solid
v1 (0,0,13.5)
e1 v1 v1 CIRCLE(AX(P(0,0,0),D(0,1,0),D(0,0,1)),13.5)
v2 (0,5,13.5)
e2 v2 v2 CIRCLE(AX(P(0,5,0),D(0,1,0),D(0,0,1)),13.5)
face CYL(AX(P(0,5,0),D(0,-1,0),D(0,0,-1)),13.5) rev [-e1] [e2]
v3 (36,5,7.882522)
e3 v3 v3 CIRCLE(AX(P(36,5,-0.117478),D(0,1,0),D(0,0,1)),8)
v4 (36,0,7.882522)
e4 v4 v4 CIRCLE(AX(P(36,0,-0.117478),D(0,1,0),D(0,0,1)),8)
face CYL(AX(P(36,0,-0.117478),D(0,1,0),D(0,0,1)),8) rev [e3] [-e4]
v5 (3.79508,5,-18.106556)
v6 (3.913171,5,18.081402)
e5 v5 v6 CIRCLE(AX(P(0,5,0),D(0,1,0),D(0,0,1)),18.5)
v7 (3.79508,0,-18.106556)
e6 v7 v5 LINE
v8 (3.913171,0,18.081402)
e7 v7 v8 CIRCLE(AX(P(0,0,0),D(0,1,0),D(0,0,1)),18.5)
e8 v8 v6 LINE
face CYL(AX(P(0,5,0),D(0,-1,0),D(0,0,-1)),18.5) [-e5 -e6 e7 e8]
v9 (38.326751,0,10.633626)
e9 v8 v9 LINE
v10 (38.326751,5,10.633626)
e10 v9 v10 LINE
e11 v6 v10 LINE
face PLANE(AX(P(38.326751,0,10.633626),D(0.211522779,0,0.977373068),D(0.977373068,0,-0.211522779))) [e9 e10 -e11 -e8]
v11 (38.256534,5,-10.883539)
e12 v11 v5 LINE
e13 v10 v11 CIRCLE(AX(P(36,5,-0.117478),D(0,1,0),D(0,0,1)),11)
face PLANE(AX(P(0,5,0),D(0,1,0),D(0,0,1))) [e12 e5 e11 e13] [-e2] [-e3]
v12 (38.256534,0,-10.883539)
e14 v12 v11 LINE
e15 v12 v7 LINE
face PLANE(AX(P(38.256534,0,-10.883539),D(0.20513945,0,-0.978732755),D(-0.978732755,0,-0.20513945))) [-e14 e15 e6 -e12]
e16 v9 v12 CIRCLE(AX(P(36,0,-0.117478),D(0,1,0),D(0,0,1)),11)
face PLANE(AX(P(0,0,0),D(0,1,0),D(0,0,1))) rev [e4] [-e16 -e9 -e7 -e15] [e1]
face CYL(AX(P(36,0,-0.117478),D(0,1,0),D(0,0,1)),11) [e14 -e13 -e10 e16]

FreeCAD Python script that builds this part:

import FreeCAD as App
import Part
import Sketcher

doc = App.newDocument("Part")
params = doc.addObject("Spreadsheet::Sheet", "Params")
for row, (alias, value) in enumerate([
    ("sketch1_diameter", "37 mm"),
    ("sketch1_diameter2", "27 mm"),
    ("pad1_length", "5 mm"),
    ("pad2_length", "5 mm"),
    ("sketch3_diameter", "22 mm"),
    ("pad3_length", "5 mm"),
    ("sketch4_diameter", "16 mm"),
    ("pocket1_length", "5 mm"),
    ("pad4_length", "5 mm"),
    ("pad5_length", "5 mm"),
], start=1):
    params.set(f"A{row}", alias)
    params.set(f"B{row}", "=" + value)
    params.setAlias(f"B{row}", alias)

body = doc.addObject("PartDesign::Body", "Body")

# Sketch on XZ plane
sketch1 = body.newObject("Sketcher::SketchObject", "Sketch")
sketch1.AttachmentSupport = (doc.getObject("XZ_Plane"), [""])
sketch1.MapMode = "FlatFace"
sketch1.addGeometry(Part.Circle(App.Vector(0, 0, 0), App.Vector(0, 0, 1), 18), False)
sketch1.addGeometry(Part.Circle(App.Vector(0, 0, 0), App.Vector(0, 0, 1), 14), False)
sketch1.addConstraint(Sketcher.Constraint("Coincident", 0, 3, -1, 1))
sketch1.addConstraint(Sketcher.Constraint("Coincident", 1, 3, -1, 1))
sketch1.addConstraint(Sketcher.Constraint("Diameter", 0, 37.0))
sketch1.addConstraint(Sketcher.Constraint("Diameter", 1, 27.0))
sketch1.setExpression("Constraints[2]", "Params.sketch1_diameter")
sketch1.setExpression("Constraints[3]", "Params.sketch1_diameter2")
pad1 = body.newObject("PartDesign::Pad", "Pad")
pad1.Profile = sketch1
pad1.setExpression("Length", "Params.pad1_length")
pad1.Reversed = True

# Sketch on XZ plane
sketch2 = body.newObject("Sketcher::SketchObject", "Sketch001")
sketch2.AttachmentSupport = (doc.getObject("XZ_Plane"), [""])
sketch2.MapMode = "FlatFace"
sketch2.AttachmentOffset = App.Placement(App.Vector(0, 0, -5), App.Rotation())
sketch2.addGeometry(Part.LineSegment(App.Vector(25, 3, 0), App.Vector(25, -3, 0)), False)
sketch2.addGeometry(Part.LineSegment(App.Vector(25, -3, 0), App.Vector(18, -3, 0)), False)
sketch2.addGeometry(Part.LineSegment(App.Vector(18, -3, 0), App.Vector(18, 3, 0)), False)
sketch2.addGeometry(Part.LineSegment(App.Vector(18, 3, 0), App.Vector(25, 3, 0)), False)
sketch2.addConstraint(Sketcher.Constraint("Coincident", 0, 2, 1, 1))
sketch2.addConstraint(Sketcher.Constraint("Coincident", 1, 2, 2, 1))
sketch2.addConstraint(Sketcher.Constraint("Coincident", 2, 2, 3, 1))
sketch2.addConstraint(Sketcher.Constraint("Coincident", 3, 2, 0, 1))
sketch2.addConstraint(Sketcher.Constraint("Vertical", 0))
sketch2.addConstraint(Sketcher.Constraint("Vertical", 2))
sketch2.addConstraint(Sketcher.Constraint("Horizontal", 3))
sketch2.addConstraint(Sketcher.Constraint("DistanceX", 3, 1, 3, 2, 7.187875))
sketch2.addConstraint(Sketcher.Constraint("DistanceY", 0, 2, 0, 1, 6.019013))
sketch2.addConstraint(Sketcher.Constraint("DistanceY", 2, 1, 2, 2, 5.784056))
sketch2.addConstraint(Sketcher.Constraint("DistanceY", 1, 2, -1, 1, 2.892028))
sketch2.addConstraint(Sketcher.Constraint("DistanceX", -1, 1, 0, 2, 25.460427))
pad2 = body.newObject("PartDesign::Pad", "Pad001")
pad2.Profile = sketch2
pad2.setExpression("Length", "Params.pad2_length")

# Sketch on XZ plane
sketch3 = body.newObject("Sketcher::SketchObject", "Sketch002")
sketch3.AttachmentSupport = (doc.getObject("XZ_Plane"), [""])
sketch3.MapMode = "FlatFace"
sketch3.AttachmentOffset = App.Placement(App.Vector(0, 0, -5), App.Rotation())
sketch3.addGeometry(Part.Circle(App.Vector(36, 0, 0), App.Vector(0, 0, 1), 11), False)
sketch3.addConstraint(Sketcher.Constraint("Diameter", 0, 22.0))
sketch3.addConstraint(Sketcher.Constraint("DistanceX", -1, 1, 0, 3, 36.0))
sketch3.addConstraint(Sketcher.Constraint("DistanceY", 0, 3, -1, 1, 0.117478))
sketch3.setExpression("Constraints[0]", "Params.sketch3_diameter")
pad3 = body.newObject("PartDesign::Pad", "Pad002")
pad3.Profile = sketch3
pad3.setExpression("Length", "Params.pad3_length")

# Sketch on XZ plane
sketch4 = body.newObject("Sketcher::SketchObject", "Sketch003")
sketch4.AttachmentSupport = (doc.getObject("XZ_Plane"), [""])
sketch4.MapMode = "FlatFace"
sketch4.AttachmentOffset = App.Placement(App.Vector(0, 0, -5), App.Rotation())
sketch4.addGeometry(Part.Circle(App.Vector(36, 0, 0), App.Vector(0, 0, 1), 8), False)
sketch4.addConstraint(Sketcher.Constraint("Diameter", 0, 16.0))
sketch4.addConstraint(Sketcher.Constraint("DistanceX", -1, 1, 0, 3, 36.0))
sketch4.addConstraint(Sketcher.Constraint("DistanceY", 0, 3, -1, 1, 0.117478))
sketch4.setExpression("Constraints[0]", "Params.sketch4_diameter")
pocket1 = body.newObject("PartDesign::Pocket", "Pocket")
pocket1.Profile = sketch4
pocket1.setExpression("Length", "Params.pocket1_length")
pocket1.Reversed = True

# Sketch on XZ plane
sketch5 = body.newObject("Sketcher::SketchObject", "Sketch004")
sketch5.AttachmentSupport = (doc.getObject("XZ_Plane"), [""])
sketch5.MapMode = "FlatFace"
sketch5.AttachmentOffset = App.Placement(App.Vector(0, 0, -5), App.Rotation())
sketch5.addGeometry(Part.LineSegment(App.Vector(38, -11, 0), App.Vector(4, -18, 0)), False)
sketch5.addGeometry(Part.LineSegment(App.Vector(4, -18, 0), App.Vector(18, -3, 0)), False)
sketch5.addGeometry(Part.LineSegment(App.Vector(18, -3, 0), App.Vector(25, -3, 0)), False)
sketch5.addGeometry(Part.LineSegment(App.Vector(25, -3, 0), App.Vector(38, -11, 0)), False)
sketch5.addConstraint(Sketcher.Constraint("Coincident", 0, 2, 1, 1))
sketch5.addConstraint(Sketcher.Constraint("Coincident", 1, 2, 2, 1))
sketch5.addConstraint(Sketcher.Constraint("Coincident", 2, 2, 3, 1))
sketch5.addConstraint(Sketcher.Constraint("Coincident", 3, 2, 0, 1))
sketch5.addConstraint(Sketcher.Constraint("DistanceY", 3, 2, 2, 2, 7.757898))
sketch5.addConstraint(Sketcher.Constraint("Distance", 0, 35.21028))
sketch5.addConstraint(Sketcher.Constraint("Distance", 3, 14.999308))
sketch5.addConstraint(Sketcher.Constraint("DistanceX", -1, 1, 0, 2, 3.79508))
sketch5.addConstraint(Sketcher.Constraint("DistanceY", 1, 2, -1, 1, 2.892028))
sketch5.addConstraint(Sketcher.Constraint("DistanceX", -1, 1, 2, 2, 25.419312))
sketch5.addConstraint(Sketcher.Constraint("DistanceY", 2, 2, -1, 1, 3.125641))
sketch5.addConstraint(Sketcher.Constraint("DistanceX", 1, 2, 2, 2, 7.146759))
pad4 = body.newObject("PartDesign::Pad", "Pad003")
pad4.Profile = sketch5
pad4.setExpression("Length", "Params.pad4_length")

# Sketch on XZ plane
sketch6 = body.newObject("Sketcher::SketchObject", "Sketch005")
sketch6.AttachmentSupport = (doc.getObject("XZ_Plane"), [""])
sketch6.MapMode = "FlatFace"
sketch6.AttachmentOffset = App.Placement(App.Vector(0, 0, -5), App.Rotation())
sketch6.addGeometry(Part.LineSegment(App.Vector(4, 18, 0), App.Vector(38, 11, 0)), False)
sketch6.addGeometry(Part.LineSegment(App.Vector(38, 11, 0), App.Vector(25, 3, 0)), False)
sketch6.addGeometry(Part.LineSegment(App.Vector(25, 3, 0), App.Vector(18, 3, 0)), False)
sketch6.addGeometry(Part.LineSegment(App.Vector(18, 3, 0), App.Vector(4, 18, 0)), False)
sketch6.addConstraint(Sketcher.Constraint("Coincident", 0, 2, 1, 1))
sketch6.addConstraint(Sketcher.Constraint("Coincident", 1, 2, 2, 1))
sketch6.addConstraint(Sketcher.Constraint("Coincident", 2, 2, 3, 1))
sketch6.addConstraint(Sketcher.Constraint("Coincident", 3, 2, 0, 1))
sketch6.addConstraint(Sketcher.Constraint("Horizontal", 2))
sketch6.addConstraint(Sketcher.Constraint("DistanceX", 2, 2, 2, 1, 7.147142))
sketch6.addConstraint(Sketcher.Constraint("DistanceY", -1, 1, 3, 2, 18.081402))
sketch6.addConstraint(Sketcher.Constraint("DistanceX", 2, 2, 0, 2, 20.054198))
sketch6.addConstraint(Sketcher.Constraint("Distance", 0, 35.21028))
sketch6.addConstraint(Sketcher.Constraint("Distance", 1, 15.050729))
sketch6.addConstraint(Sketcher.Constraint("DistanceX", -1, 1, 0, 2, 38.326751))
sketch6.addConstraint(Sketcher.Constraint("DistanceY", -1, 1, 1, 2, 2.892028))
pad5 = body.newObject("PartDesign::Pad", "Pad004")
pad5.Profile = sketch6
pad5.setExpression("Length", "Params.pad5_length")

doc.recompute()
